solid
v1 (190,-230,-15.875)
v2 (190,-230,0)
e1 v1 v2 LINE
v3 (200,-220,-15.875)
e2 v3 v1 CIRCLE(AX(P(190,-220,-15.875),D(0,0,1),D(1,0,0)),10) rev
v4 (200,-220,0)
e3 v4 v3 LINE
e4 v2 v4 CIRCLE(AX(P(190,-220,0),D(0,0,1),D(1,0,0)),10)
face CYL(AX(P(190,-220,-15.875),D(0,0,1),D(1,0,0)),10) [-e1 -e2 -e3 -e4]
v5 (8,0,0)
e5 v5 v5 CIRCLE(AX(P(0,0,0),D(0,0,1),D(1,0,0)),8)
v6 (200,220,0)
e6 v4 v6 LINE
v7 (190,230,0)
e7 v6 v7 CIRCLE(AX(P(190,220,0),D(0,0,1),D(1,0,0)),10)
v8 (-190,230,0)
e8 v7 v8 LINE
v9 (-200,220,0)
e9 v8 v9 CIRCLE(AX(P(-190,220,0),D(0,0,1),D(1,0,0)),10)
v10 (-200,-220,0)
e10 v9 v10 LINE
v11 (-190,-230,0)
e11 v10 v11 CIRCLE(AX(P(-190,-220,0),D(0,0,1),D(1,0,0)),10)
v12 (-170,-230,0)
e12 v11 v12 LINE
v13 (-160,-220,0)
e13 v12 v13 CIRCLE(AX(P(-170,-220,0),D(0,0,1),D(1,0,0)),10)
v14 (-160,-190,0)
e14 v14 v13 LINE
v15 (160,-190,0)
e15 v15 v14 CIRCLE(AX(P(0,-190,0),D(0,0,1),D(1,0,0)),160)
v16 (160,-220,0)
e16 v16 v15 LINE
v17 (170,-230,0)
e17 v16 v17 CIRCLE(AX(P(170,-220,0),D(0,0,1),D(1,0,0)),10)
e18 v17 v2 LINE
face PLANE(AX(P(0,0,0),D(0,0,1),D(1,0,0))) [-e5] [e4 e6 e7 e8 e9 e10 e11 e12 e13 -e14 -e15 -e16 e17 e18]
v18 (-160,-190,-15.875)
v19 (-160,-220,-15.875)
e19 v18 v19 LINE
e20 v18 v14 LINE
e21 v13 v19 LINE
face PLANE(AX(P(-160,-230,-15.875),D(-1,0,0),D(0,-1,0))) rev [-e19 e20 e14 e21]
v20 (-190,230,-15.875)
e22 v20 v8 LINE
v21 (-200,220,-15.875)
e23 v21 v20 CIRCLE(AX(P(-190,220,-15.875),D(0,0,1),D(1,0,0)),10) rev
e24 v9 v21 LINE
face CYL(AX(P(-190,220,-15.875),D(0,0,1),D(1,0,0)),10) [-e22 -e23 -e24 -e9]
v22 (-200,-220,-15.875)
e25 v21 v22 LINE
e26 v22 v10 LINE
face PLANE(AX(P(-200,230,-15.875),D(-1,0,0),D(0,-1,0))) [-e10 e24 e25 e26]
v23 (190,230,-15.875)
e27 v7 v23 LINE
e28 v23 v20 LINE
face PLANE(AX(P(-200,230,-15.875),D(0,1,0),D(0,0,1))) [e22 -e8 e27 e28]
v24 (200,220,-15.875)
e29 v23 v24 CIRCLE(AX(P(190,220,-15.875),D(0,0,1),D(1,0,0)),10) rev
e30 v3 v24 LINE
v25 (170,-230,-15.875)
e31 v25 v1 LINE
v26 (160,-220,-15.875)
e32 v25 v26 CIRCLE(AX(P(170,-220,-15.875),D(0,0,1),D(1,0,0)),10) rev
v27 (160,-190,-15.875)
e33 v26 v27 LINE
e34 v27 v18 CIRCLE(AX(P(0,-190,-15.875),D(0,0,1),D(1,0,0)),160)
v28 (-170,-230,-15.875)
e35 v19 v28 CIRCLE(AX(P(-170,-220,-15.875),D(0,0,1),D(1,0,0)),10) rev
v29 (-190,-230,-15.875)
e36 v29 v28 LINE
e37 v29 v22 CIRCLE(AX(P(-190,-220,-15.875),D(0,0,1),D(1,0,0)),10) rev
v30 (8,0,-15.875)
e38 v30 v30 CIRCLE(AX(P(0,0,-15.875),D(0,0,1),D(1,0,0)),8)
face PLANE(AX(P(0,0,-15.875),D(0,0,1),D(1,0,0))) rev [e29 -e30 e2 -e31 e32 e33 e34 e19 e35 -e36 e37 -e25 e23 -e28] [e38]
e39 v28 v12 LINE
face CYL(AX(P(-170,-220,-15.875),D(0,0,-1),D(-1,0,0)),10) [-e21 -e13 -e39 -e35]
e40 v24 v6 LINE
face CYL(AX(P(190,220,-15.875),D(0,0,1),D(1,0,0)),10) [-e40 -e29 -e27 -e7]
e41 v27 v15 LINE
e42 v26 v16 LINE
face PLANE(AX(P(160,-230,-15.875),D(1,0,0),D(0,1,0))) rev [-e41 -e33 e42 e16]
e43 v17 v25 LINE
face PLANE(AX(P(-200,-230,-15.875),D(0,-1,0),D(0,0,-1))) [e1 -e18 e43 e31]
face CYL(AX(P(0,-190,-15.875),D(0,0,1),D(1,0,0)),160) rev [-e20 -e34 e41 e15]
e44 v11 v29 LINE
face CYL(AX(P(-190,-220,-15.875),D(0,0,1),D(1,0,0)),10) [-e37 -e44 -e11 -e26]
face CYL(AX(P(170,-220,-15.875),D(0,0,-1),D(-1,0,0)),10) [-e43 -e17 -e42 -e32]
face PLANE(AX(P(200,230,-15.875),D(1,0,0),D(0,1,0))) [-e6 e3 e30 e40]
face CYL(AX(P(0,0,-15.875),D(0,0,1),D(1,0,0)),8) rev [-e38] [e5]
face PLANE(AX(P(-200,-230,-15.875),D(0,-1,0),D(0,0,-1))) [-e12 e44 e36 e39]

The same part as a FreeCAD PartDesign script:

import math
import FreeCAD as App
import Part
import Sketcher

V = App.Vector
Q = App.Units.Quantity


def edges_at(feature, points):
    """Names of the edges that pass closest to the given points."""
    edges = feature.Shape.Edges
    near = lambda p: min(range(len(edges)), key=lambda i: edges[i].distToShape(Part.Vertex(*p))[0])
    return sorted({f"Edge{near(p) + 1}" for p in points})

doc = App.newDocument("Part")
body = doc.addObject("PartDesign::Body", "Body")

# Sketch on XY plane
sketch1 = body.newObject("Sketcher::SketchObject", "Sketch")
sketch1.AttachmentSupport = (doc.getObject("XY_Plane"), [""])
sketch1.MapMode = "FlatFace"
sketch1.addGeometry([
    Part.LineSegment(V(-200, 230, 0), V(-200, -230, 0)),
    Part.LineSegment(V(-200, -230, 0), V(200, -230, 0)),
    Part.LineSegment(V(200, -230, 0), V(200, 230, 0)),
    Part.LineSegment(V(200, 230, 0), V(-200, 230, 0)),
], False)
sketch1.addConstraint([
    Sketcher.Constraint("Coincident", 0, 2, 1, 1),
    Sketcher.Constraint("Coincident", 1, 2, 2, 1),
    Sketcher.Constraint("Coincident", 2, 2, 3, 1),
    Sketcher.Constraint("Coincident", 3, 2, 0, 1),
    Sketcher.Constraint("Vertical", 0),
    Sketcher.Constraint("Horizontal", 1),
    Sketcher.Constraint("Vertical", 2),
    Sketcher.Constraint("Horizontal", 3),
    Sketcher.Constraint("Symmetric", 0, 2, 2, 2, -1, 1),
    Sketcher.Constraint("DistanceX", 1, 1, 1, 2, Q("400 mm")),
    Sketcher.Constraint("DistanceY", 0, 2, 0, 1, Q("460 mm")),
])
pad1 = body.newObject("PartDesign::Pad", "Pad")
pad1.Profile = sketch1
pad1.Length = 15.875
pad1.Reversed = True

# Sketch on XY plane
sketch2 = body.newObject("Sketcher::SketchObject", "Sketch001")
sketch2.AttachmentSupport = (doc.getObject("XY_Plane"), [""])
sketch2.MapMode = "FlatFace"
sketch2.addGeometry([
    Part.LineSegment(V(160, -230, 0), V(160, -190, 0)),
    Part.ArcOfCircle(Part.Circle(V(0, -190, 0), V(0, 0, 1), 160), math.radians(0), math.radians(180)),
    Part.LineSegment(V(-160, -190, 0), V(-160, -230, 0)),
    Part.LineSegment(V(-160, -230, 0), V(160, -230, 0)),
], False)
sketch2.addConstraint([
    Sketcher.Constraint("Tangent", 0, 2, 1, 1),
    Sketcher.Constraint("Tangent", 1, 2, 2, 1),
    Sketcher.Constraint("Coincident", 2, 2, 3, 1),
    Sketcher.Constraint("Coincident", 3, 2, 0, 1),
    Sketcher.Constraint("Vertical", 0),
    Sketcher.Constraint("Vertical", 2),
    Sketcher.Constraint("Horizontal", 3),
    Sketcher.Constraint("PointOnObject", 1, 3, -2),
    Sketcher.Constraint("Radius", 1, Q("160 mm")),
    Sketcher.Constraint("DistanceY", 0, 1, 0, 2, Q("40 mm")),
    Sketcher.Constraint("DistanceY", 1, 3, -1, 1, Q("190 mm")),
])
pocket1 = body.newObject("PartDesign::Pocket", "Pocket")
pocket1.Profile = sketch2
pocket1.Type = "ThroughAll"
doc.recompute()

fillet = body.newObject("PartDesign::Fillet", "Fillet")
fillet.Base = (pocket1, edges_at(pocket1, [
    (160, -230, -7.938),
    (-160, -230, -7.938),
    (200, -230, -7.938),
    (-200, -230, -7.938),
    (-200, 230, -7.938),
    (200, 230, -7.938),
]))
fillet.Radius = 10

# Sketch on XY plane
sketch3 = body.newObject("Sketcher::SketchObject", "Sketch002")
sketch3.AttachmentSupport = (doc.getObject("XY_Plane"), [""])
sketch3.MapMode = "FlatFace"
sketch3.addGeometry(Part.Circle(V(0, 0, 0), V(0, 0, 1), 8), False)
sketch3.addConstraint([
    Sketcher.Constraint("Coincident", 0, 3, -1, 1),
    Sketcher.Constraint("Diameter", 0, Q("16 mm")),
])
pocket2 = body.newObject("PartDesign::Pocket", "Pocket001")
pocket2.Profile = sketch3
pocket2.Type = "ThroughAll"

doc.recompute()
